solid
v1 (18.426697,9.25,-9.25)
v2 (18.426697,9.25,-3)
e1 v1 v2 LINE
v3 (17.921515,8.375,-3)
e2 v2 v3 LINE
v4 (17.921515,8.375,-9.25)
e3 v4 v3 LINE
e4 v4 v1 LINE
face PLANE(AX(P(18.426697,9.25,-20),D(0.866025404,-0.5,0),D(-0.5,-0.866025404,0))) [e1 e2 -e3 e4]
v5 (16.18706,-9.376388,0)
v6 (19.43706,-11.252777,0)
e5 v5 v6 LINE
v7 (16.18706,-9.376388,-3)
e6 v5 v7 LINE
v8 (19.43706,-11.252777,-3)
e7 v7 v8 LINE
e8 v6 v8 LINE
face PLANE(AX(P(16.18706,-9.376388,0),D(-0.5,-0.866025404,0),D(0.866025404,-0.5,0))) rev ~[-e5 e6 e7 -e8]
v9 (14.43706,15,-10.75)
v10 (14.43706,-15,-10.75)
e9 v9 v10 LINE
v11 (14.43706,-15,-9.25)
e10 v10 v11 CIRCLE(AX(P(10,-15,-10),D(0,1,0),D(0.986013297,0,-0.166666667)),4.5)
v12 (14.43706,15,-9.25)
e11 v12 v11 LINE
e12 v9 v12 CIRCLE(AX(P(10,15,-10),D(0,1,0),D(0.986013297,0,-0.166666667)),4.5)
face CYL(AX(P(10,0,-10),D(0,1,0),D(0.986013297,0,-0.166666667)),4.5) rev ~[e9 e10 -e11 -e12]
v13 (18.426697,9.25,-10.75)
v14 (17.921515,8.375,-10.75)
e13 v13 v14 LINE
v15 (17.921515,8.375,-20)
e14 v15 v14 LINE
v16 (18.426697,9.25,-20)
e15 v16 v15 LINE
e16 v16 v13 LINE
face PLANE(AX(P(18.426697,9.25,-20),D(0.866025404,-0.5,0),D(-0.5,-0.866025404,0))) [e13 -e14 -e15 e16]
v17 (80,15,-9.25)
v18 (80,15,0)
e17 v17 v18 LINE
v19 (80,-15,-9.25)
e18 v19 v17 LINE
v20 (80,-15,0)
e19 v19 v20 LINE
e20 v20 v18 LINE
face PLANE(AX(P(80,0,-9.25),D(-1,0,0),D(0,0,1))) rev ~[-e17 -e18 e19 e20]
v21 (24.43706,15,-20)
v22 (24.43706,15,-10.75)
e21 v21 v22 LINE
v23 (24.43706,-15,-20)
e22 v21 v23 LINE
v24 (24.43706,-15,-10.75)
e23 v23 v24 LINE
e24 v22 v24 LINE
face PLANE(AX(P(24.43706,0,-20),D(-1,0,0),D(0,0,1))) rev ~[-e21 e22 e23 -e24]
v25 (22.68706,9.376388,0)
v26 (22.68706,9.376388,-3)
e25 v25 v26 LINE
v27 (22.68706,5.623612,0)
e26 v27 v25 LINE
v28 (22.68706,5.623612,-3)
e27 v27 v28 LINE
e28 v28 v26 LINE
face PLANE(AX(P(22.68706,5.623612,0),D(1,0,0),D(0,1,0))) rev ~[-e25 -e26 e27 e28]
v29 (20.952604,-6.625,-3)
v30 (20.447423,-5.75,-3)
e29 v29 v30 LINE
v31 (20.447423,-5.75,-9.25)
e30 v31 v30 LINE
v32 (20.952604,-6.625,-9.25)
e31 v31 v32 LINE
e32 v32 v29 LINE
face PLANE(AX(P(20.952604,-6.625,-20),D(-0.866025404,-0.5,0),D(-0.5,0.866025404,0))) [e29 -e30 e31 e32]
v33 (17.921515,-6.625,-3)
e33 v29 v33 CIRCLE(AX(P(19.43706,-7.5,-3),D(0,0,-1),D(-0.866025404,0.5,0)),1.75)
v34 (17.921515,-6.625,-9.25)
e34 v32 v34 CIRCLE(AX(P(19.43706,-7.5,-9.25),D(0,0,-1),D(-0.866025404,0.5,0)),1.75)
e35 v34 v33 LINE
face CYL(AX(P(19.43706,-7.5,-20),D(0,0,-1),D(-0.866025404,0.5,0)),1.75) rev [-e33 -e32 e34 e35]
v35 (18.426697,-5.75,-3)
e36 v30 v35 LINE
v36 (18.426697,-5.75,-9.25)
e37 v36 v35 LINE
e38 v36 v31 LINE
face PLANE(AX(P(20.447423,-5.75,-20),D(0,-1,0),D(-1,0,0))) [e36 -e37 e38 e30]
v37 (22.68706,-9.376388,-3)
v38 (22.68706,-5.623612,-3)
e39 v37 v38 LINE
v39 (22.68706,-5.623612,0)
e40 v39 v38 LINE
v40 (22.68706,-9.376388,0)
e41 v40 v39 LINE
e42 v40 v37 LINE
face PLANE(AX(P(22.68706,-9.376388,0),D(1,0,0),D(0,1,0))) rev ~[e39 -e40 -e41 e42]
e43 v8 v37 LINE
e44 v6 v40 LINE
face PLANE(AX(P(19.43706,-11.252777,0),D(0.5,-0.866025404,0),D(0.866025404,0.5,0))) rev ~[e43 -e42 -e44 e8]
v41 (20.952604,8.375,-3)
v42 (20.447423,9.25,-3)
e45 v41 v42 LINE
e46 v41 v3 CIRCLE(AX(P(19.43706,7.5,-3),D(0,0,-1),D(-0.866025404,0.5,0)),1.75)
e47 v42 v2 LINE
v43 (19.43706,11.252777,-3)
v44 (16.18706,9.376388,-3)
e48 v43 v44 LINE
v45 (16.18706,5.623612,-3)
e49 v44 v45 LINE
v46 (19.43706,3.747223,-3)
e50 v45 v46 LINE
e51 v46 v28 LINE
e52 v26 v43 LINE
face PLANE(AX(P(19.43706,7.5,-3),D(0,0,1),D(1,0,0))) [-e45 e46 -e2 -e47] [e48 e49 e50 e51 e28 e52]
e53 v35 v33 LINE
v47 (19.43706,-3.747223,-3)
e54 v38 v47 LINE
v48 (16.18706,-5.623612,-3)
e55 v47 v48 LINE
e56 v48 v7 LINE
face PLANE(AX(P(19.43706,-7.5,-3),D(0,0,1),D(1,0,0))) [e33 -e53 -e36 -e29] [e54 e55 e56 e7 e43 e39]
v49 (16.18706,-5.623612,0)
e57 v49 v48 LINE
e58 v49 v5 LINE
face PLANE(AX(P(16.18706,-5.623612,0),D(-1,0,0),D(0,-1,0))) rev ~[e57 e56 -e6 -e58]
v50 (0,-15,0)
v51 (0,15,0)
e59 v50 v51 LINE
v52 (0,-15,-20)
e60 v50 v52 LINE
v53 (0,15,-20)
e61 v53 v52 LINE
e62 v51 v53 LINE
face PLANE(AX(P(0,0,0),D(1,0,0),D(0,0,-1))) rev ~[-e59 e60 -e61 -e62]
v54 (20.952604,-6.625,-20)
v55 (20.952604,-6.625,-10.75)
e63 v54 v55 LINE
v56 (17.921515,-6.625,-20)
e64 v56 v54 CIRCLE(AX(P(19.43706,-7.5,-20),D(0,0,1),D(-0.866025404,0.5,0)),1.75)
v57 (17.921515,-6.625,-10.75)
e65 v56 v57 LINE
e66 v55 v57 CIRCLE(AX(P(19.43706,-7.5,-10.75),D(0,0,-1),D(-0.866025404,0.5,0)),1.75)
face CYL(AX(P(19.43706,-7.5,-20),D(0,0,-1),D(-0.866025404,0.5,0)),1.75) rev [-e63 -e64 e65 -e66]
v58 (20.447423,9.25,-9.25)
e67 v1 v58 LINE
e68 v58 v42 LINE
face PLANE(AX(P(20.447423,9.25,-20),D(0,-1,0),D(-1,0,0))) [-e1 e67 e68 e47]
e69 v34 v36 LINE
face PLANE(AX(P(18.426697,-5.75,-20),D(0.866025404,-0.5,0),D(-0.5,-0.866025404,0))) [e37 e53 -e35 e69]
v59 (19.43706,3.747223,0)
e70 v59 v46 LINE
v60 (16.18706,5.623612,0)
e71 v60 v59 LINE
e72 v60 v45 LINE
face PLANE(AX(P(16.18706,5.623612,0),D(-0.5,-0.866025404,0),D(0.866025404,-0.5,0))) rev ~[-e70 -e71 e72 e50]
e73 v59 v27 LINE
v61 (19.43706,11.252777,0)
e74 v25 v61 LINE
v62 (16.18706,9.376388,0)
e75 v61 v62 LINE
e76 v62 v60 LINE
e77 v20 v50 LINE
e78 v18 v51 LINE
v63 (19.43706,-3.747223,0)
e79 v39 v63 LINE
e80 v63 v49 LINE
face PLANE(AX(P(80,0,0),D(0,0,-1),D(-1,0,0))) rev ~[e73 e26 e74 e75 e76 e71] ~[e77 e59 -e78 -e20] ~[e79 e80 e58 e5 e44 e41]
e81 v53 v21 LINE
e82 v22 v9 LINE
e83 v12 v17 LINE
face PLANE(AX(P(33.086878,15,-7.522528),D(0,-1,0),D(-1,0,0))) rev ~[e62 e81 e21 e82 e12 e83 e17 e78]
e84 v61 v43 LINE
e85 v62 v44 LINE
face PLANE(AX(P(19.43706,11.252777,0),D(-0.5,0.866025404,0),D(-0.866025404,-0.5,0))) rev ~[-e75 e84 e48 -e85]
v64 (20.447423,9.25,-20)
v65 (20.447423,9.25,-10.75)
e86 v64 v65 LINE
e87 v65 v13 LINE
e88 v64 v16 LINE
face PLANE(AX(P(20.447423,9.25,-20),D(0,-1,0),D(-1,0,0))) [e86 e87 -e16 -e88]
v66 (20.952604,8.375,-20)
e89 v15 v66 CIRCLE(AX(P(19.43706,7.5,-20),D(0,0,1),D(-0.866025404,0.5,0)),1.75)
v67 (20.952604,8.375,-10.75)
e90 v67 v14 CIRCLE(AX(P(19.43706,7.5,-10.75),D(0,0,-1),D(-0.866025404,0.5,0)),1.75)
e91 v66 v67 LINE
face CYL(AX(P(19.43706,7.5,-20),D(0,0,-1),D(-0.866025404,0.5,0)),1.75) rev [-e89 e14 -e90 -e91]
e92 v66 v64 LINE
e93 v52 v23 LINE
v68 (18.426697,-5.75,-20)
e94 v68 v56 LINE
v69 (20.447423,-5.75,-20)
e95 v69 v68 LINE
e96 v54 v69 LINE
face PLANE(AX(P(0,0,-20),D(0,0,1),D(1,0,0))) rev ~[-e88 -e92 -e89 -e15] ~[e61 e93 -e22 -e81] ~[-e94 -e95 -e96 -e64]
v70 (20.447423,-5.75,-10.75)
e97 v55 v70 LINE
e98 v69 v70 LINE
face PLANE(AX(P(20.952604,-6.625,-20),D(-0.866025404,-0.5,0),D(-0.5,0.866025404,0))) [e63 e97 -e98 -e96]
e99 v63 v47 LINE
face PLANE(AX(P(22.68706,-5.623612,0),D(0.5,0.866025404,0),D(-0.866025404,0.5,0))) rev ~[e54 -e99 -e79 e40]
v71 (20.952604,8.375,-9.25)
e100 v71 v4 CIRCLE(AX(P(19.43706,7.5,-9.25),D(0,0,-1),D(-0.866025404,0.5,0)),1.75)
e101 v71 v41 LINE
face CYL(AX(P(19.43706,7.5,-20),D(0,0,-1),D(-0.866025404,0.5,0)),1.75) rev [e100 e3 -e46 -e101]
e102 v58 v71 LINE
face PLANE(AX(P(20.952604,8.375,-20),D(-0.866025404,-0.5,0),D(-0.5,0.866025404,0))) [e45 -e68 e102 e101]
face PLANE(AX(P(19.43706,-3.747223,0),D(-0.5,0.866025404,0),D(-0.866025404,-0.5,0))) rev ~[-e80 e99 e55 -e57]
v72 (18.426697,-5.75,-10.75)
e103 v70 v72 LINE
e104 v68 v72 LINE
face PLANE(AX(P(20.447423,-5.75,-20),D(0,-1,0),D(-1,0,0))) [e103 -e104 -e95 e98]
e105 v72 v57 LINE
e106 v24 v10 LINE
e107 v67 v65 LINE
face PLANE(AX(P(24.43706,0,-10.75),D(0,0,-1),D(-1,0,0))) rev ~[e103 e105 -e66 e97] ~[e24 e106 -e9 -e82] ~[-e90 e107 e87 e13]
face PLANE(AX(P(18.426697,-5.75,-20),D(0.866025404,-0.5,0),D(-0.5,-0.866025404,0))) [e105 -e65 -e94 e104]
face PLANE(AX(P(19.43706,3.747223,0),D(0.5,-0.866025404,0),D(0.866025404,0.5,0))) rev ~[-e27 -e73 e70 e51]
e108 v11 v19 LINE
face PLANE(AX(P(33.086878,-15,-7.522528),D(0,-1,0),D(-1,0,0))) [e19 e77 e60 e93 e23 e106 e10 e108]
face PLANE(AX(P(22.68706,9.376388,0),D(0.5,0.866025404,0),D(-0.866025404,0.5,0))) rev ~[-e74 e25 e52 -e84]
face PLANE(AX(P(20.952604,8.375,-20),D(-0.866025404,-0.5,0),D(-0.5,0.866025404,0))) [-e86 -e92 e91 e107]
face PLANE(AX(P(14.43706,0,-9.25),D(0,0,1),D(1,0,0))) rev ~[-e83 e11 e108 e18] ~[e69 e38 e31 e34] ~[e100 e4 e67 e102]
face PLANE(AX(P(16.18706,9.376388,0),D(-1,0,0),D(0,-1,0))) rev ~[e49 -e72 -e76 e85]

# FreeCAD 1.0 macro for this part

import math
import FreeCAD as App
import Part
import Sketcher
Q = App.Units.Quantity

doc = App.newDocument("Part")
params = doc.addObject("Spreadsheet::Sheet", "Params")
for row, (alias, value) in enumerate([
    ("sketch1_radius", "4.5 mm"),
    ("sketch1_width", "80 mm"),
    ("sketch1_width2", "10 mm"),
    ("sketch1_height", "20 mm"),
    ("sketch1_height2", "9.25 mm"),
    ("pad1_length", "30 mm"),
    ("sketch2_radius", "1.75 mm"),
    ("pocket2_length", "3 mm"),
], start=1):
    params.set(f"A{row}", alias)
    params.set(f"B{row}", "=" + value)
    params.setAlias(f"B{row}", alias)

body = doc.addObject("PartDesign::Body", "Body")

sketch1 = body.newObject("Sketcher::SketchObject", "Sketch")
sketch1.AttachmentSupport = (doc.getObject("XZ_Plane"), [""])
sketch1.MapMode = "FlatFace"
sketch1.addGeometry(Part.LineSegment(App.Vector(0, -20, 0), App.Vector(0, 0, 0)), False)
sketch1.addGeometry(Part.LineSegment(App.Vector(0, 0, 0), App.Vector(80, 0, 0)), False)
sketch1.addGeometry(Part.LineSegment(App.Vector(80, 0, 0), App.Vector(80, -9.2, 0)), False)
sketch1.addGeometry(Part.LineSegment(App.Vector(80, -9.2, 0), App.Vector(14.4, -9.2, 0)), False)
sketch1.addGeometry(Part.ArcOfCircle(Part.Circle(App.Vector(10, -10, 0), App.Vector(0, 0, 1), 4.5), math.radians(10), math.radians(350)), False)
sketch1.addGeometry(Part.LineSegment(App.Vector(14.4, -10.8, 0), App.Vector(24.4, -10.8, 0)), False)
sketch1.addGeometry(Part.LineSegment(App.Vector(24.4, -10.8, 0), App.Vector(24.4, -20, 0)), False)
sketch1.addGeometry(Part.LineSegment(App.Vector(24.4, -20, 0), App.Vector(0, -20, 0)), False)
sketch1.addConstraint(Sketcher.Constraint("Coincident", 0, 2, 1, 1))
sketch1.addConstraint(Sketcher.Constraint("Coincident", 1, 2, 2, 1))
sketch1.addConstraint(Sketcher.Constraint("Coincident", 2, 2, 3, 1))
sketch1.addConstraint(Sketcher.Constraint("Coincident", 3, 2, 4, 1))
sketch1.addConstraint(Sketcher.Constraint("Coincident", 4, 2, 5, 1))
sketch1.addConstraint(Sketcher.Constraint("Coincident", 5, 2, 6, 1))
sketch1.addConstraint(Sketcher.Constraint("Coincident", 6, 2, 7, 1))
sketch1.addConstraint(Sketcher.Constraint("Coincident", 7, 2, 0, 1))
sketch1.addConstraint(Sketcher.Constraint("Vertical", 0))
sketch1.addConstraint(Sketcher.Constraint("Horizontal", 1))
sketch1.addConstraint(Sketcher.Constraint("Vertical", 2))
sketch1.addConstraint(Sketcher.Constraint("Horizontal", 3))
sketch1.addConstraint(Sketcher.Constraint("Horizontal", 5))
sketch1.addConstraint(Sketcher.Constraint("Vertical", 6))
sketch1.addConstraint(Sketcher.Constraint("Horizontal", 7))
sketch1.addConstraint(Sketcher.Constraint("Coincident", 0, 2, -1, 1))
sketch1.addConstraint(Sketcher.Constraint("Vertical", 3, 2, 4, 2))
sketch1.addConstraint(Sketcher.Constraint("Equal", 2, 6))
sketch1.addConstraint(Sketcher.Constraint("Radius", 4, Q("4.5 mm")))
sketch1.addConstraint(Sketcher.Constraint("DistanceX", 1, 1, 1, 2, Q("80 mm")))
sketch1.addConstraint(Sketcher.Constraint("DistanceX", 5, 1, 5, 2, Q("10 mm")))
sketch1.addConstraint(Sketcher.Constraint("DistanceY", 0, 1, 0, 2, Q("20 mm")))
sketch1.addConstraint(Sketcher.Constraint("DistanceX", -1, 1, 4, 3, Q("10 mm")))
sketch1.addConstraint(Sketcher.Constraint("DistanceY", 2, 2, 2, 1, Q("9.25 mm")))
sketch1.setExpression("Constraints[18]", "Params.sketch1_radius")
sketch1.setExpression("Constraints[19]", "Params.sketch1_width")
sketch1.setExpression("Constraints[20]", "Params.sketch1_width2")
sketch1.setExpression("Constraints[21]", "Params.sketch1_height")
sketch1.setExpression("Constraints[23]", "Params.sketch1_height2")
pad1 = body.newObject("PartDesign::Pad", "Pad")
pad1.Profile = sketch1
pad1.setExpression("Length", "Params.pad1_length")
pad1.Midplane = True

sketch2 = body.newObject("Sketcher::SketchObject", "Sketch001")
sketch2.AttachmentSupport = (doc.getObject("XY_Plane"), [""])
sketch2.MapMode = "FlatFace"
sketch2.AttachmentOffset = App.Placement(App.Vector(0, 0, -20), App.Rotation())
sketch2.addGeometry(Part.LineSegment(App.Vector(18.4, -5.8, 0), App.Vector(20.4, -5.8, 0)), False)
sketch2.addGeometry(Part.LineSegment(App.Vector(20.4, -5.8, 0), App.Vector(21, -6.6, 0)), False)
sketch2.addGeometry(Part.ArcOfCircle(Part.Circle(App.Vector(19.4, -7.5, 0), App.Vector(0, 0, 1), 1.8), math.radians(150), math.radians(390)), False)
sketch2.addGeometry(Part.LineSegment(App.Vector(17.9, -6.6, 0), App.Vector(18.4, -5.8, 0)), False)
sketch2.addGeometry(Part.LineSegment(App.Vector(18.4, 9.2, 0), App.Vector(20.4, 9.2, 0)), False)
sketch2.addGeometry(Part.LineSegment(App.Vector(20.4, 9.2, 0), App.Vector(21, 8.4, 0)), False)
sketch2.addGeometry(Part.ArcOfCircle(Part.Circle(App.Vector(19.4, 7.5, 0), App.Vector(0, 0, 1), 1.8), math.radians(150), math.radians(390)), False)
sketch2.addGeometry(Part.LineSegment(App.Vector(17.9, 8.4, 0), App.Vector(18.4, 9.2, 0)), False)
sketch2.addConstraint(Sketcher.Constraint("Coincident", 0, 2, 1, 1))
sketch2.addConstraint(Sketcher.Constraint("Tangent", 1, 2, 2, 2))
sketch2.addConstraint(Sketcher.Constraint("Tangent", 2, 1, 3, 1))
sketch2.addConstraint(Sketcher.Constraint("Coincident", 3, 2, 0, 1))
sketch2.addConstraint(Sketcher.Constraint("Coincident", 4, 2, 5, 1))
sketch2.addConstraint(Sketcher.Constraint("Tangent", 5, 2, 6, 2))
sketch2.addConstraint(Sketcher.Constraint("Tangent", 6, 1, 7, 1))
sketch2.addConstraint(Sketcher.Constraint("Coincident", 7, 2, 4, 1))
sketch2.addConstraint(Sketcher.Constraint("Horizontal", 0))
sketch2.addConstraint(Sketcher.Constraint("Horizontal", 4))
sketch2.addConstraint(Sketcher.Constraint("Equal", 2, 6))
sketch2.addConstraint(Sketcher.Constraint("Symmetric", 2, 3, 6, 3, -1))
sketch2.addConstraint(Sketcher.Constraint("Parallel", 1, 5))
sketch2.addConstraint(Sketcher.Constraint("Parallel", 3, 7))
sketch2.addConstraint(Sketcher.Constraint("Horizontal", 1, 2, 2, 1))
sketch2.addConstraint(Sketcher.Constraint("Vertical", 0, 2, 4, 2))
sketch2.addConstraint(Sketcher.Constraint("Angle", 1, Q("-60 deg")))
sketch2.addConstraint(Sketcher.Constraint("Radius", 2, Q("1.75 mm")))
sketch2.addConstraint(Sketcher.Constraint("DistanceY", 2, 3, 6, 3, Q("15 mm")))
sketch2.addConstraint(Sketcher.Constraint("DistanceY", 0, 2, -1, 1, Q("5.75 mm")))
sketch2.addConstraint(Sketcher.Constraint("DistanceX", -1, 1, 2, 3, Q("19.43706 mm")))
sketch2.setExpression("Constraints[17]", "Params.sketch2_radius")
pocket1 = body.newObject("PartDesign::Pocket", "Pocket")
pocket1.Profile = sketch2
pocket1.Type = "ThroughAll"
pocket1.Reversed = True

sketch3 = body.newObject("Sketcher::SketchObject", "Sketch002")
sketch3.AttachmentSupport = (doc.getObject("XY_Plane"), [""])
sketch3.MapMode = "FlatFace"
sketch3.addGeometry(Part.LineSegment(App.Vector(19.4, 11.3, 0), App.Vector(16.2, 9.4, 0)), False)
sketch3.addGeometry(Part.LineSegment(App.Vector(16.2, 9.4, 0), App.Vector(16.2, 5.6, 0)), False)
sketch3.addGeometry(Part.LineSegment(App.Vector(16.2, 5.6, 0), App.Vector(19.4, 3.7, 0)), False)
sketch3.addGeometry(Part.LineSegment(App.Vector(19.4, 3.7, 0), App.Vector(22.7, 5.6, 0)), False)
sketch3.addGeometry(Part.LineSegment(App.Vector(22.7, 5.6, 0), App.Vector(22.7, 9.4, 0)), False)
sketch3.addGeometry(Part.LineSegment(App.Vector(22.7, 9.4, 0), App.Vector(19.4, 11.3, 0)), False)
sketch3.addGeometry(Part.LineSegment(App.Vector(19.4, -3.7, 0), App.Vector(16.2, -5.6, 0)), False)
sketch3.addGeometry(Part.LineSegment(App.Vector(16.2, -5.6, 0), App.Vector(16.2, -9.4, 0)), False)
sketch3.addGeometry(Part.LineSegment(App.Vector(16.2, -9.4, 0), App.Vector(19.4, -11.3, 0)), False)
sketch3.addGeometry(Part.LineSegment(App.Vector(19.4, -11.3, 0), App.Vector(22.7, -9.4, 0)), False)
sketch3.addGeometry(Part.LineSegment(App.Vector(22.7, -9.4, 0), App.Vector(22.7, -5.6, 0)), False)
sketch3.addGeometry(Part.LineSegment(App.Vector(22.7, -5.6, 0), App.Vector(19.4, -3.7, 0)), False)
sketch3.addConstraint(Sketcher.Constraint("Coincident", 0, 2, 1, 1))
sketch3.addConstraint(Sketcher.Constraint("Coincident", 1, 2, 2, 1))
sketch3.addConstraint(Sketcher.Constraint("Coincident", 2, 2, 3, 1))
sketch3.addConstraint(Sketcher.Constraint("Coincident", 3, 2, 4, 1))
sketch3.addConstraint(Sketcher.Constraint("Coincident", 4, 2, 5, 1))
sketch3.addConstraint(Sketcher.Constraint("Coincident", 5, 2, 0, 1))
sketch3.addConstraint(Sketcher.Constraint("Coincident", 6, 2, 7, 1))
sketch3.addConstraint(Sketcher.Constraint("Coincident", 7, 2, 8, 1))
sketch3.addConstraint(Sketcher.Constraint("Coincident", 8, 2, 9, 1))
sketch3.addConstraint(Sketcher.Constraint("Coincident", 9, 2, 10, 1))
sketch3.addConstraint(Sketcher.Constraint("Coincident", 10, 2, 11, 1))
sketch3.addConstraint(Sketcher.Constraint("Coincident", 11, 2, 6, 1))
sketch3.addConstraint(Sketcher.Constraint("Vertical", 1))
sketch3.addConstraint(Sketcher.Constraint("Vertical", 4))
sketch3.addConstraint(Sketcher.Constraint("Vertical", 7))
sketch3.addConstraint(Sketcher.Constraint("Vertical", 10))
sketch3.addConstraint(Sketcher.Constraint("Symmetric", 1, 2, 6, 2, -1))
sketch3.addConstraint(Sketcher.Constraint("Symmetric", 5, 2, 8, 2, -1))
sketch3.addConstraint(Sketcher.Constraint("Symmetric", 4, 2, 9, 2, -1))
sketch3.addConstraint(Sketcher.Constraint("Symmetric", 2, 2, 11, 2, -1))
sketch3.addConstraint(Sketcher.Constraint("Parallel", 0, 3))
sketch3.addConstraint(Sketcher.Constraint("Parallel", 2, 5))
sketch3.addConstraint(Sketcher.Constraint("Parallel", 3, 6))
sketch3.addConstraint(Sketcher.Constraint("Parallel", 5, 8))
sketch3.addConstraint(Sketcher.Constraint("Parallel", 8, 11))
sketch3.addConstraint(Sketcher.Constraint("Horizontal", 1, 2, 3, 2))
sketch3.addConstraint(Sketcher.Constraint("Horizontal", 0, 2, 4, 2))
sketch3.addConstraint(Sketcher.Constraint("Angle", 0, Q("-150 deg")))
sketch3.addConstraint(Sketcher.Constraint("DistanceY", 6, 2, 0, 2, Q("15 mm")))
sketch3.addConstraint(Sketcher.Constraint("DistanceX", 1, 2, 3, 2, Q("6.5 mm")))
sketch3.addConstraint(Sketcher.Constraint("DistanceY", 1, 2, 1, 1, Q("3.752777 mm")))
sketch3.addConstraint(Sketcher.Constraint("DistanceX", -1, 1, 0, 2, Q("16.18706 mm")))
pocket2 = body.newObject("PartDesign::Pocket", "Pocket001")
pocket2.Profile = sketch3
pocket2.setExpression("Length", "Params.pocket2_length")

doc.recompute()
